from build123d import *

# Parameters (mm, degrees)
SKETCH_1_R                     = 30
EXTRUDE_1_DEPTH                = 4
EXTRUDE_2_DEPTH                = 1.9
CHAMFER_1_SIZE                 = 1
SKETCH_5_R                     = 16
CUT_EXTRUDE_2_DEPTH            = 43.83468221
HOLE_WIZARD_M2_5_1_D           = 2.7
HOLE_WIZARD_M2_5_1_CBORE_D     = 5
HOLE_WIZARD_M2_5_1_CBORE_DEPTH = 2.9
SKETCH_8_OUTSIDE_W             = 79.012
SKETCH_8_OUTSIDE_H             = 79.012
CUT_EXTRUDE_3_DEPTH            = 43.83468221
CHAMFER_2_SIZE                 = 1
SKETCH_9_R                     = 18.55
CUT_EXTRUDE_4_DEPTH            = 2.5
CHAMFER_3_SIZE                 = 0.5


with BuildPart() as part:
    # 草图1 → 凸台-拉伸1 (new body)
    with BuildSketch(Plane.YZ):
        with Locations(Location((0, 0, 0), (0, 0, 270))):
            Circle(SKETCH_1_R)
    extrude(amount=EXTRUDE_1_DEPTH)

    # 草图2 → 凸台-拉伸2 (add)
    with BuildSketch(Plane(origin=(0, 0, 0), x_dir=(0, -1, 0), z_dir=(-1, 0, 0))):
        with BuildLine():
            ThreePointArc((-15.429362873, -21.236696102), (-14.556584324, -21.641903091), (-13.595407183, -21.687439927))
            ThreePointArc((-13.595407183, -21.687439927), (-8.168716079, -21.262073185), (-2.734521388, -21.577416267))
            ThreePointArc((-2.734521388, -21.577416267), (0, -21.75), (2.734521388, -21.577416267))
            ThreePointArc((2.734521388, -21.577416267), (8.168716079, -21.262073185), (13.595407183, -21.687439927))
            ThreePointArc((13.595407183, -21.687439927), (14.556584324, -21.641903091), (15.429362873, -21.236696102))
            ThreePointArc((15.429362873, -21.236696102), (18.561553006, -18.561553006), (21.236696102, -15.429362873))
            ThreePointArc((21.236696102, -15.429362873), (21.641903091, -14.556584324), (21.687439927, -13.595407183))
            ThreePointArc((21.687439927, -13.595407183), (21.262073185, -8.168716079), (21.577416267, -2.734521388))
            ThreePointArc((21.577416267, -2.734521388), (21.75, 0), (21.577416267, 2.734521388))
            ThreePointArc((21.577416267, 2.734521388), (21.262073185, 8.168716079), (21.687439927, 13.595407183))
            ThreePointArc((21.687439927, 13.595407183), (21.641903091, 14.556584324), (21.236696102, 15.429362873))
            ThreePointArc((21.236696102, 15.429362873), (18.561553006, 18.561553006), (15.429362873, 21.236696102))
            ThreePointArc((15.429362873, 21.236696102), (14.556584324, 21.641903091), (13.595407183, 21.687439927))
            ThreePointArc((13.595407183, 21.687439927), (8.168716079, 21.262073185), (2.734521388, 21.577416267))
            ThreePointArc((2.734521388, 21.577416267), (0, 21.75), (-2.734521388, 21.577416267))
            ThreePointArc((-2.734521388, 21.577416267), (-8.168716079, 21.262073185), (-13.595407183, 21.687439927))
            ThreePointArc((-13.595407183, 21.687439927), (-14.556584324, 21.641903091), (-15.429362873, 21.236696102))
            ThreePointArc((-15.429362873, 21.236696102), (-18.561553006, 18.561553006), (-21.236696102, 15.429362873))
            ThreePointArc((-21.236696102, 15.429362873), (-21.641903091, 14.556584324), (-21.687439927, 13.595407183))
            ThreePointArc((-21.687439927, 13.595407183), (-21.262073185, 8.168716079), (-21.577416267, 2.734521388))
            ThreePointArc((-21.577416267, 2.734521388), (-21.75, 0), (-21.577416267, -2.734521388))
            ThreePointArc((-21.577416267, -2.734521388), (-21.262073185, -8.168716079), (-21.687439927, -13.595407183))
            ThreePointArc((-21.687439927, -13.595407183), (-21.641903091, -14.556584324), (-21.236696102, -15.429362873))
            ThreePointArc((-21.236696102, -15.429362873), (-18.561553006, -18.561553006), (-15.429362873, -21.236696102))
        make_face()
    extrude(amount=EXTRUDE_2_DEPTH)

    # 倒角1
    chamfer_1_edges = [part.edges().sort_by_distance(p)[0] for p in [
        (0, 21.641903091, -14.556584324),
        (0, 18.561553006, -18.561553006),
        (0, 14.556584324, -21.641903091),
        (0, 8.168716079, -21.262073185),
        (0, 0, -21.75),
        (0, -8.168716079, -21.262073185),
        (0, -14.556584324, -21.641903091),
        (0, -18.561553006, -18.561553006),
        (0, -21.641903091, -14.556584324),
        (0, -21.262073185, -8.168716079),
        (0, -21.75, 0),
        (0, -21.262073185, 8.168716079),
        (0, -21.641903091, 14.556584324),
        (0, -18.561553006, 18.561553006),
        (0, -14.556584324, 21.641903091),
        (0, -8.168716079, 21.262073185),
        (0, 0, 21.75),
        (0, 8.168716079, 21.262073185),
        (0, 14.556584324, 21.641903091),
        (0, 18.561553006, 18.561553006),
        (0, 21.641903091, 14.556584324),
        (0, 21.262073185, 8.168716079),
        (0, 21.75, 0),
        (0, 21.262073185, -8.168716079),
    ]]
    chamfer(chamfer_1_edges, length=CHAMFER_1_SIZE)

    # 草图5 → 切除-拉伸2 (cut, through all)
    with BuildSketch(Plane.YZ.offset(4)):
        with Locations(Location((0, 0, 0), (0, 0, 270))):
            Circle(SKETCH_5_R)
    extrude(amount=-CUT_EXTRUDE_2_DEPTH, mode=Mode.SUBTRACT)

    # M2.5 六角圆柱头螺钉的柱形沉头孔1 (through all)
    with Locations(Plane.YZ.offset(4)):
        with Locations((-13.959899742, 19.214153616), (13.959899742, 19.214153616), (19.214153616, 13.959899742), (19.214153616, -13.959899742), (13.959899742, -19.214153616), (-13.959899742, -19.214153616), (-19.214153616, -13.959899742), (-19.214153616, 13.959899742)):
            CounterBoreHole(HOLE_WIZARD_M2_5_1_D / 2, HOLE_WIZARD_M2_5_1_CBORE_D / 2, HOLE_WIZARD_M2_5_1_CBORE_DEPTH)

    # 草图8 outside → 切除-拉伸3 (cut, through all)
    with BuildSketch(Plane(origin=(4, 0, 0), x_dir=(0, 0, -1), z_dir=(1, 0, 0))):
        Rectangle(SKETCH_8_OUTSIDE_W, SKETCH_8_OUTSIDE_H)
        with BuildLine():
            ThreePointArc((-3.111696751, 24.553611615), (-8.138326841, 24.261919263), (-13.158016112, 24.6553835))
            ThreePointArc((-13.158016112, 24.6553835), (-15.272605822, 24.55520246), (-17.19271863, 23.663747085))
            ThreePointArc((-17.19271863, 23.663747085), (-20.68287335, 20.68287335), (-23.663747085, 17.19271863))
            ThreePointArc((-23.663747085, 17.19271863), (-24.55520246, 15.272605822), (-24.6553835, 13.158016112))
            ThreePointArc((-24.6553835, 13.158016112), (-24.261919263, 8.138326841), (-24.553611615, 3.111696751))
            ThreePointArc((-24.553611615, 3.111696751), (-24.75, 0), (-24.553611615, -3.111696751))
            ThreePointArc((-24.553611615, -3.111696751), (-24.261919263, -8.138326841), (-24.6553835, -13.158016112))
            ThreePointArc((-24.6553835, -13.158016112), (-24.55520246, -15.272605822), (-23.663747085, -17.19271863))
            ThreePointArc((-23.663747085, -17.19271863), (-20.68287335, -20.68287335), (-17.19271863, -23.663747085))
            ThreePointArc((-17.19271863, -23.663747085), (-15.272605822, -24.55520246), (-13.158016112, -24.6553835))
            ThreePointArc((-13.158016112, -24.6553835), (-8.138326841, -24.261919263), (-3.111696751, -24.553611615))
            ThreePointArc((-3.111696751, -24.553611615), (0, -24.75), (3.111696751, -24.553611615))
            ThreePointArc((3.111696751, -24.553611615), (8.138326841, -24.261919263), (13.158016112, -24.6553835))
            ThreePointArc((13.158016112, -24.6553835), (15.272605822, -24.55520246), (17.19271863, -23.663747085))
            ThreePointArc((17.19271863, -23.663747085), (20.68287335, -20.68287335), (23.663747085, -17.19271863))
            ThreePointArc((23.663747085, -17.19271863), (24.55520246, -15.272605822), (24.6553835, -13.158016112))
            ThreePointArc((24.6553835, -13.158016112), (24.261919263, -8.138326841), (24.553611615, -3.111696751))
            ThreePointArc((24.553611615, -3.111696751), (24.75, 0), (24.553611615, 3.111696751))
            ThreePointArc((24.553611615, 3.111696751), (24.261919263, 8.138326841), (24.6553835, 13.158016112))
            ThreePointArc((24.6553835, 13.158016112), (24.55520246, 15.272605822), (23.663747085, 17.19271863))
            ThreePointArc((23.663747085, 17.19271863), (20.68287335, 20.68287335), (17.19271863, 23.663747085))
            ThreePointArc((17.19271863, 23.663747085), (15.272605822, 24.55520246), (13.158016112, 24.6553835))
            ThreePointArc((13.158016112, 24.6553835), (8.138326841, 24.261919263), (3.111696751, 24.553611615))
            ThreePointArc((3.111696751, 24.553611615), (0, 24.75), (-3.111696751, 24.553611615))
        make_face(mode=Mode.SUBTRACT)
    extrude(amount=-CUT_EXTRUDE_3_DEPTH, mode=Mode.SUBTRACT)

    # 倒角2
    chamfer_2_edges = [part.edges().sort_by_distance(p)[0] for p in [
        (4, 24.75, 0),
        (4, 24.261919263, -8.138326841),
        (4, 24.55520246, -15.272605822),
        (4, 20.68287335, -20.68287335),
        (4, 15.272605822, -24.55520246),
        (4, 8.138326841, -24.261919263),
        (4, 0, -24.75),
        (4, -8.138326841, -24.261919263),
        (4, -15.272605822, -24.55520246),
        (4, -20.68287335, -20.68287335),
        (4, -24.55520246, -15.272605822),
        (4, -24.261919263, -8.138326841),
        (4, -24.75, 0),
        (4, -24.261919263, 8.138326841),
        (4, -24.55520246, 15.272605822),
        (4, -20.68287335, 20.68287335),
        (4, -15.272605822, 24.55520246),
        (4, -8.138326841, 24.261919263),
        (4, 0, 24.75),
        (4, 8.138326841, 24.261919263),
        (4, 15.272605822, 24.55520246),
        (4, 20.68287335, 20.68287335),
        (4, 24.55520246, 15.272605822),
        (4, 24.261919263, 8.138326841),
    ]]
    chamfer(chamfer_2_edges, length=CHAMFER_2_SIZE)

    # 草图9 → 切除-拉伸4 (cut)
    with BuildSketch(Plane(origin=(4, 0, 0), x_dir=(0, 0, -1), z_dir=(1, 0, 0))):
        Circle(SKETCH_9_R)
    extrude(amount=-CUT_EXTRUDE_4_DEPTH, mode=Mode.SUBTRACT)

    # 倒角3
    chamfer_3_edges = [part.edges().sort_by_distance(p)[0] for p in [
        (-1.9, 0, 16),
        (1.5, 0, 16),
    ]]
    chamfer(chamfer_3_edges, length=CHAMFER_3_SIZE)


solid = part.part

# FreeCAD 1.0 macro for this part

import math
import FreeCAD as App
import Part
import Sketcher
from FreeCAD import Vector
Q = App.Units.Quantity


def edges_at(feature, points):
    """Names of the edges that pass closest to the given points."""
    edges = feature.Shape.Edges
    near = lambda p: min(range(len(edges)), key=lambda i: edges[i].distToShape(Part.Vertex(*p))[0])
    return sorted({f"Edge{near(p) + 1}" for p in points})


def add_polygon(sketch, points):
    """Adds a closed chain of lines whose ends are joined by coincident constraints."""
    first, n = sketch.GeometryCount, len(points)
    for a, b in zip(points, points[1:] + points[:1]):
        sketch.addGeometry(Part.LineSegment(App.Vector(*a, 0), App.Vector(*b, 0)), False)
    for i in range(n):
        sketch.addConstraint(Sketcher.Constraint("Coincident", first + i, 2, first + (i + 1) % n, 1))

doc = App.newDocument("Part")
body = doc.addObject("PartDesign::Body", "Body")

sketch1 = body.newObject("Sketcher::SketchObject", "Sketch")
sketch1.AttachmentSupport = (doc.getObject("YZ_Plane"), [""])
sketch1.MapMode = "FlatFace"
sketch1.addGeometry(Part.Circle(Vector(0, 0, 0), Vector(0, 0, 1), 30), False)
sketch1.addConstraint([
    Sketcher.Constraint("Coincident", 0, 3, -1, 1),
    Sketcher.Constraint("Diameter", 0, Q("60 mm")),
])
pad1 = body.newObject("PartDesign::Pad", "Pad")
pad1.Profile = sketch1
pad1.Length = 4

sketch2 = body.newObject("Sketcher::SketchObject", "Sketch001")
sketch2.AttachmentSupport = (doc.getObject("YZ_Plane"), [""])
sketch2.MapMode = "FlatFace"
sketch2.addGeometry([
    Part.ArcOfCircle(Part.Circle(Vector(14, -19.2, 0), Vector(0, 0, 1), 2.5), math.radians(-98), math.radians(-54)),
    Part.ArcOfCircle(Part.Circle(Vector(7.8, -61.3, 0), Vector(0, 0, 1), 40), math.radians(81.62), math.radians(97.22)),
    Part.ArcOfCircle(Part.Circle(Vector(0, 0, 0), Vector(0, 0, 1), 21.7), math.radians(-97.22), math.radians(-82.78)),
    Part.ArcOfCircle(Part.Circle(Vector(-7.8, -61.3, 0), Vector(0, 0, 1), 40), math.radians(82.78), math.radians(98.38)),
    Part.ArcOfCircle(Part.Circle(Vector(-14, -19.2, 0), Vector(0, 0, 1), 2.5), math.radians(-126), math.radians(-82)),
    Part.ArcOfCircle(Part.Circle(Vector(0, 0, 0), Vector(0, 0, 1), 26.3), math.radians(-144), math.radians(-126)),
    Part.ArcOfCircle(Part.Circle(Vector(-19.2, -14, 0), Vector(0, 0, 1), 2.5), math.radians(172), math.radians(216)),
    Part.ArcOfCircle(Part.Circle(Vector(-61.3, -7.8, 0), Vector(0, 0, 1), 40), math.radians(-8.38), math.radians(7.22)),
    Part.ArcOfCircle(Part.Circle(Vector(0, 0, 0), Vector(0, 0, 1), 21.7), math.radians(172.78), math.radians(187.22)),
    Part.ArcOfCircle(Part.Circle(Vector(-61.3, 7.8, 0), Vector(0, 0, 1), 40), math.radians(-7.22), math.radians(8.38)),
    Part.ArcOfCircle(Part.Circle(Vector(-19.2, 14, 0), Vector(0, 0, 1), 2.5), math.radians(144), math.radians(188)),
    Part.ArcOfCircle(Part.Circle(Vector(0, 0, 0), Vector(0, 0, 1), 26.3), math.radians(126), math.radians(144)),
    Part.ArcOfCircle(Part.Circle(Vector(-14, 19.2, 0), Vector(0, 0, 1), 2.5), math.radians(82), math.radians(126)),
    Part.ArcOfCircle(Part.Circle(Vector(-7.8, 61.3, 0), Vector(0, 0, 1), 40), math.radians(-98.38), math.radians(-82.78)),
    Part.ArcOfCircle(Part.Circle(Vector(0, 0, 0), Vector(0, 0, 1), 21.7), math.radians(82.78), math.radians(97.22)),
    Part.ArcOfCircle(Part.Circle(Vector(7.8, 61.3, 0), Vector(0, 0, 1), 40), math.radians(-97.22), math.radians(-81.62)),
    Part.ArcOfCircle(Part.Circle(Vector(14, 19.2, 0), Vector(0, 0, 1), 2.5), math.radians(54), math.radians(98)),
    Part.ArcOfCircle(Part.Circle(Vector(0, 0, 0), Vector(0, 0, 1), 26.3), math.radians(36), math.radians(54)),
    Part.ArcOfCircle(Part.Circle(Vector(19.2, 14, 0), Vector(0, 0, 1), 2.5), math.radians(-8), math.radians(36)),
    Part.ArcOfCircle(Part.Circle(Vector(61.3, 7.8, 0), Vector(0, 0, 1), 40), math.radians(171.62), math.radians(187.22)),
    Part.ArcOfCircle(Part.Circle(Vector(0, 0, 0), Vector(0, 0, 1), 21.7), math.radians(-7.22), math.radians(7.22)),
    Part.ArcOfCircle(Part.Circle(Vector(61.3, -7.8, 0), Vector(0, 0, 1), 40), math.radians(172.78), math.radians(188.38)),
    Part.ArcOfCircle(Part.Circle(Vector(19.2, -14, 0), Vector(0, 0, 1), 2.5), math.radians(-36), math.radians(8)),
    Part.ArcOfCircle(Part.Circle(Vector(0, 0, 0), Vector(0, 0, 1), 26.3), math.radians(-54), math.radians(-36)),
], False)
sketch2.addConstraint([
    Sketcher.Constraint("Tangent", 0, 1, 1, 1),
    Sketcher.Constraint("Tangent", 1, 2, 2, 2),
    Sketcher.Constraint("Tangent", 2, 1, 3, 1),
    Sketcher.Constraint("Tangent", 3, 2, 4, 2),
    Sketcher.Constraint("Tangent", 4, 1, 5, 2),
    Sketcher.Constraint("Tangent", 5, 1, 6, 2),
    Sketcher.Constraint("Tangent", 6, 1, 7, 1),
    Sketcher.Constraint("Tangent", 7, 2, 8, 2),
    Sketcher.Constraint("Tangent", 8, 1, 9, 1),
    Sketcher.Constraint("Tangent", 9, 2, 10, 2),
    Sketcher.Constraint("Tangent", 10, 1, 11, 2),
    Sketcher.Constraint("Tangent", 11, 1, 12, 2),
    Sketcher.Constraint("Tangent", 12, 1, 13, 1),
    Sketcher.Constraint("Tangent", 13, 2, 14, 2),
    Sketcher.Constraint("Tangent", 14, 1, 15, 1),
    Sketcher.Constraint("Tangent", 15, 2, 16, 2),
    Sketcher.Constraint("Tangent", 16, 1, 17, 2),
    Sketcher.Constraint("Tangent", 17, 1, 18, 2),
    Sketcher.Constraint("Tangent", 18, 1, 19, 1),
    Sketcher.Constraint("Tangent", 19, 2, 20, 2),
    Sketcher.Constraint("Tangent", 20, 1, 21, 1),
    Sketcher.Constraint("Tangent", 21, 2, 22, 2),
    Sketcher.Constraint("Tangent", 22, 1, 23, 2),
    Sketcher.Constraint("Tangent", 23, 1, 0, 2),
    Sketcher.Constraint("Coincident", 2, 3, -1, 1),
    Sketcher.Constraint("Coincident", 5, 3, -1, 1),
    Sketcher.Constraint("Coincident", 8, 3, -1, 1),
    Sketcher.Constraint("Coincident", 11, 3, -1, 1),
    Sketcher.Constraint("Coincident", 14, 3, -1, 1),
    Sketcher.Constraint("Coincident", 17, 3, -1, 1),
    Sketcher.Constraint("Coincident", 20, 3, -1, 1),
    Sketcher.Constraint("Coincident", 23, 3, -1, 1),
    Sketcher.Constraint("Equal", 1, 3),
    Sketcher.Constraint("Equal", 0, 4),
    Sketcher.Constraint("Equal", 4, 6),
    Sketcher.Constraint("Equal", 3, 7),
    Sketcher.Constraint("Equal", 2, 8),
    Sketcher.Constraint("Equal", 7, 9),
    Sketcher.Constraint("Equal", 6, 10),
    Sketcher.Constraint("Equal", 5, 11),
    Sketcher.Constraint("Equal", 10, 12),
    Sketcher.Constraint("Equal", 9, 13),
    Sketcher.Constraint("Equal", 8, 14),
    Sketcher.Constraint("Equal", 13, 15),
    Sketcher.Constraint("Equal", 12, 16),
    Sketcher.Constraint("Equal", 11, 17),
    Sketcher.Constraint("Equal", 16, 18),
    Sketcher.Constraint("Equal", 15, 19),
    Sketcher.Constraint("Equal", 14, 20),
    Sketcher.Constraint("Equal", 19, 21),
    Sketcher.Constraint("Equal", 18, 22),
    Sketcher.Constraint("Equal", 17, 23),
    Sketcher.Constraint("Horizontal", 1, 3, 3, 3),
    Sketcher.Constraint("Horizontal", 13, 3, 15, 3),
    Sketcher.Constraint("Horizontal", 10, 3, 18, 3),
    Sketcher.Constraint("Horizontal", 7, 3, 21, 3),
    Sketcher.Constraint("Vertical", 7, 3, 9, 3),
    Sketcher.Constraint("Vertical", 4, 3, 12, 3),
    Sketcher.Constraint("Radius", 1, Q("40 mm")),
    Sketcher.Constraint("Radius", 0, Q("2.5 mm")),
    Sketcher.Constraint("Radius", 2, Q("21.75 mm")),
    Sketcher.Constraint("Radius", 5, Q("26.25 mm")),
    Sketcher.Constraint("DistanceX", -1, 1, 0, 3, Q("13.9599 mm")),
    Sketcher.Constraint("DistanceY", 6, 3, -1, 1, Q("13.9599 mm")),
])
pad2 = body.newObject("PartDesign::Pad", "Pad001")
pad2.Profile = sketch2
pad2.Length = 1.9
pad2.Reversed = True
doc.recompute()

chamfer = body.newObject("PartDesign::Chamfer", "Chamfer")
chamfer.Base = (pad2, edges_at(pad2, [
    (0, 21.642, -14.557),
    (0, 18.562, -18.562),
    (0, 14.557, -21.642),
    (0, 8.169, -21.262),
    (0, 0, -21.75),
    (0, -8.169, -21.262),
    (0, -14.557, -21.642),
    (0, -18.562, -18.562),
    (0, -21.642, -14.557),
    (0, -21.262, -8.169),
    (0, -21.75, 0),
    (0, -21.262, 8.169),
    (0, -21.642, 14.557),
    (0, -18.562, 18.562),
    (0, -14.557, 21.642),
    (0, -8.169, 21.262),
    (0, 0, 21.75),
    (0, 8.169, 21.262),
    (0, 14.557, 21.642),
    (0, 18.562, 18.562),
    (0, 21.642, 14.557),
    (0, 21.262, 8.169),
    (0, 21.75, 0),
    (0, 21.262, -8.169),
]))
chamfer.Size = 1

sketch3 = body.newObject("Sketcher::SketchObject", "Sketch002")
sketch3.AttachmentSupport = (doc.getObject("YZ_Plane"), [""])
sketch3.MapMode = "FlatFace"
sketch3.AttachmentOffset = App.Placement(Vector(0, 0, 4), App.Rotation())
sketch3.addGeometry(Part.Circle(Vector(0, 0, 0), Vector(0, 0, 1), 16), False)
sketch3.addConstraint([
    Sketcher.Constraint("Coincident", 0, 3, -1, 1),
    Sketcher.Constraint("Diameter", 0, Q("32 mm")),
])
pocket1 = body.newObject("PartDesign::Pocket", "Pocket")
pocket1.Profile = sketch3
pocket1.Type = "ThroughAll"

sketch4 = body.newObject("Sketcher::SketchObject", "Sketch003")
sketch4.AttachmentSupport = (doc.getObject("YZ_Plane"), [""])
sketch4.MapMode = "FlatFace"
sketch4.AttachmentOffset = App.Placement(Vector(0, 0, 4), App.Rotation())
sketch4.addGeometry([
    Part.Circle(Vector(-14, 19.2, 0), Vector(0, 0, 1), 1.4),
    Part.Circle(Vector(14, 19.2, 0), Vector(0, 0, 1), 1.4),
    Part.Circle(Vector(19.2, 14, 0), Vector(0, 0, 1), 1.4),
    Part.Circle(Vector(19.2, -14, 0), Vector(0, 0, 1), 1.4),
    Part.Circle(Vector(14, -19.2, 0), Vector(0, 0, 1), 1.4),
    Part.Circle(Vector(-14, -19.2, 0), Vector(0, 0, 1), 1.4),
    Part.Circle(Vector(-19.2, -14, 0), Vector(0, 0, 1), 1.4),
    Part.Circle(Vector(-19.2, 14, 0), Vector(0, 0, 1), 1.4),
], False)
sketch4.addConstraint([
    Sketcher.Constraint("Equal", 0, 1),
    Sketcher.Constraint("Equal", 1, 2),
    Sketcher.Constraint("Equal", 2, 3),
    Sketcher.Constraint("Equal", 3, 4),
    Sketcher.Constraint("Equal", 4, 5),
    Sketcher.Constraint("Equal", 5, 6),
    Sketcher.Constraint("Equal", 6, 7),
    Sketcher.Constraint("Symmetric", 0, 3, 4, 3, -1, 1),
    Sketcher.Constraint("Symmetric", 1, 3, 5, 3, -1, 1),
    Sketcher.Constraint("Symmetric", 2, 3, 6, 3, -1, 1),
    Sketcher.Constraint("Symmetric", 3, 3, 7, 3, -1, 1),
    Sketcher.Constraint("Symmetric", 0, 3, 1, 3, -2),
    Sketcher.Constraint("Symmetric", 3, 3, 6, 3, -2),
    Sketcher.Constraint("Diameter", 0, Q("2.7 mm")),
    Sketcher.Constraint("DistanceX", 0, 3, -1, 1, Q("13.9599 mm")),
    Sketcher.Constraint("DistanceY", -1, 1, 2, 3, Q("13.9599 mm")),
    Sketcher.Constraint("DistanceY", -1, 1, 0, 3, Q("19.214154 mm")),
    Sketcher.Constraint("DistanceX", -1, 1, 2, 3, Q("19.214154 mm")),
])
doc.recompute()
hole = body.newObject("PartDesign::Hole", "Hole")
hole.Profile = sketch4
hole.ThreadType = "None"
hole.Diameter = 2.7
hole.DepthType = "ThroughAll"
hole.HoleCutType = "Counterbore"
hole.HoleCutDiameter = 5
hole.HoleCutDepth = 2.9

sketch5 = body.newObject("Sketcher::SketchObject", "Sketch004")
sketch5.AttachmentSupport = (doc.getObject("YZ_Plane"), [""])
sketch5.MapMode = "FlatFace"
sketch5.AttachmentOffset = App.Placement(Vector(0, 0, 4), App.Rotation())
add_polygon(sketch5, [(39.5, 39.5), (-39.5, 39.5), (-39.5, -39.5), (39.5, -39.5)])
sketch5.addGeometry(Part.ArcOfCircle(Part.Circle(Vector(61.3, 7.8, 0), Vector(0, 0, 1), 37), math.radians(171.62), math.radians(187.22)), False)
sketch5.addGeometry(Part.ArcOfCircle(Part.Circle(Vector(0, 0, 0), Vector(0, 0, 1), 24.8), math.radians(-7.22), math.radians(7.22)), False)
sketch5.addGeometry(Part.ArcOfCircle(Part.Circle(Vector(61.3, -7.8, 0), Vector(0, 0, 1), 37), math.radians(172.78), math.radians(188.38)), False)
sketch5.addGeometry(Part.ArcOfCircle(Part.Circle(Vector(19.2, -14, 0), Vector(0, 0, 1), 5.5), math.radians(-36), math.radians(8)), False)
sketch5.addGeometry(Part.ArcOfCircle(Part.Circle(Vector(0, 0, 0), Vector(0, 0, 1), 29.2), math.radians(-54), math.radians(-36)), False)
sketch5.addGeometry(Part.ArcOfCircle(Part.Circle(Vector(14, -19.2, 0), Vector(0, 0, 1), 5.5), math.radians(-98), math.radians(-54)), False)
sketch5.addGeometry(Part.ArcOfCircle(Part.Circle(Vector(7.8, -61.3, 0), Vector(0, 0, 1), 37), math.radians(81.62), math.radians(97.22)), False)
sketch5.addGeometry(Part.ArcOfCircle(Part.Circle(Vector(0, 0, 0), Vector(0, 0, 1), 24.8), math.radians(-97.22), math.radians(-82.78)), False)
sketch5.addGeometry(Part.ArcOfCircle(Part.Circle(Vector(-7.8, -61.3, 0), Vector(0, 0, 1), 37), math.radians(82.78), math.radians(98.38)), False)
sketch5.addGeometry(Part.ArcOfCircle(Part.Circle(Vector(-14, -19.2, 0), Vector(0, 0, 1), 5.5), math.radians(-126), math.radians(-82)), False)
sketch5.addGeometry(Part.ArcOfCircle(Part.Circle(Vector(0, 0, 0), Vector(0, 0, 1), 29.2), math.radians(-144), math.radians(-126)), False)
sketch5.addGeometry(Part.ArcOfCircle(Part.Circle(Vector(-19.2, -14, 0), Vector(0, 0, 1), 5.5), math.radians(172), math.radians(216)), False)
sketch5.addGeometry(Part.ArcOfCircle(Part.Circle(Vector(-61.3, -7.8, 0), Vector(0, 0, 1), 37), math.radians(-8.38), math.radians(7.22)), False)
sketch5.addGeometry(Part.ArcOfCircle(Part.Circle(Vector(0, 0, 0), Vector(0, 0, 1), 24.8), math.radians(172.78), math.radians(187.22)), False)
sketch5.addGeometry(Part.ArcOfCircle(Part.Circle(Vector(-61.3, 7.8, 0), Vector(0, 0, 1), 37), math.radians(-7.22), math.radians(8.38)), False)
sketch5.addGeometry(Part.ArcOfCircle(Part.Circle(Vector(-19.2, 14, 0), Vector(0, 0, 1), 5.5), math.radians(144), math.radians(188)), False)
sketch5.addGeometry(Part.ArcOfCircle(Part.Circle(Vector(0, 0, 0), Vector(0, 0, 1), 29.2), math.radians(126), math.radians(144)), False)
sketch5.addGeometry(Part.ArcOfCircle(Part.Circle(Vector(-14, 19.2, 0), Vector(0, 0, 1), 5.5), math.radians(82), math.radians(126)), False)
sketch5.addGeometry(Part.ArcOfCircle(Part.Circle(Vector(-7.8, 61.3, 0), Vector(0, 0, 1), 37), math.radians(-98.38), math.radians(-82.78)), False)
sketch5.addGeometry(Part.ArcOfCircle(Part.Circle(Vector(0, 0, 0), Vector(0, 0, 1), 24.8), math.radians(82.78), math.radians(97.22)), False)
sketch5.addGeometry(Part.ArcOfCircle(Part.Circle(Vector(7.8, 61.3, 0), Vector(0, 0, 1), 37), math.radians(-97.22), math.radians(-81.62)), False)
sketch5.addGeometry(Part.ArcOfCircle(Part.Circle(Vector(14, 19.2, 0), Vector(0, 0, 1), 5.5), math.radians(54), math.radians(98)), False)
sketch5.addGeometry(Part.ArcOfCircle(Part.Circle(Vector(0, 0, 0), Vector(0, 0, 1), 29.2), math.radians(36), math.radians(54)), False)
sketch5.addGeometry(Part.ArcOfCircle(Part.Circle(Vector(19.2, 14, 0), Vector(0, 0, 1), 5.5), math.radians(-8), math.radians(36)), False)
sketch5.addConstraint([
    Sketcher.Constraint("Tangent", 4, 2, 5, 2),
    Sketcher.Constraint("Tangent", 5, 1, 6, 1),
    Sketcher.Constraint("Tangent", 6, 2, 7, 2),
    Sketcher.Constraint("Tangent", 7, 1, 8, 2),
    Sketcher.Constraint("Tangent", 8, 1, 9, 2),
    Sketcher.Constraint("Tangent", 9, 1, 10, 1),
    Sketcher.Constraint("Tangent", 10, 2, 11, 2),
    Sketcher.Constraint("Tangent", 11, 1, 12, 1),
    Sketcher.Constraint("Tangent", 12, 2, 13, 2),
    Sketcher.Constraint("Tangent", 13, 1, 14, 2),
    Sketcher.Constraint("Tangent", 14, 1, 15, 2),
    Sketcher.Constraint("Tangent", 15, 1, 16, 1),
    Sketcher.Constraint("Tangent", 16, 2, 17, 2),
    Sketcher.Constraint("Tangent", 17, 1, 18, 1),
    Sketcher.Constraint("Tangent", 18, 2, 19, 2),
    Sketcher.Constraint("Tangent", 19, 1, 20, 2),
    Sketcher.Constraint("Tangent", 20, 1, 21, 2),
    Sketcher.Constraint("Tangent", 21, 1, 22, 1),
    Sketcher.Constraint("Tangent", 22, 2, 23, 2),
    Sketcher.Constraint("Tangent", 23, 1, 24, 1),
    Sketcher.Constraint("Tangent", 24, 2, 25, 2),
    Sketcher.Constraint("Tangent", 25, 1, 26, 2),
    Sketcher.Constraint("Tangent", 26, 1, 27, 2),
    Sketcher.Constraint("Tangent", 27, 1, 4, 1),
    Sketcher.Constraint("Horizontal", 0),
    Sketcher.Constraint("Vertical", 1),
    Sketcher.Constraint("Horizontal", 2),
    Sketcher.Constraint("Vertical", 3),
    Sketcher.Constraint("Coincident", 5, 3, -1, 1),
    Sketcher.Constraint("Coincident", 8, 3, -1, 1),
    Sketcher.Constraint("Coincident", 11, 3, -1, 1),
    Sketcher.Constraint("Coincident", 14, 3, -1, 1),
    Sketcher.Constraint("Coincident", 17, 3, -1, 1),
    Sketcher.Constraint("Coincident", 20, 3, -1, 1),
    Sketcher.Constraint("Coincident", 23, 3, -1, 1),
    Sketcher.Constraint("Coincident", 26, 3, -1, 1),
    Sketcher.Constraint("Equal", 4, 6),
    Sketcher.Constraint("Equal", 7, 9),
    Sketcher.Constraint("Equal", 6, 10),
    Sketcher.Constraint("Equal", 5, 11),
    Sketcher.Constraint("Equal", 10, 12),
    Sketcher.Constraint("Equal", 9, 13),
    Sketcher.Constraint("Equal", 8, 14),
    Sketcher.Constraint("Equal", 13, 15),
    Sketcher.Constraint("Equal", 12, 16),
    Sketcher.Constraint("Equal", 11, 17),
    Sketcher.Constraint("Equal", 16, 18),
    Sketcher.Constraint("Equal", 15, 19),
    Sketcher.Constraint("Equal", 14, 20),
    Sketcher.Constraint("Equal", 19, 21),
    Sketcher.Constraint("Equal", 18, 22),
    Sketcher.Constraint("Equal", 17, 23),
    Sketcher.Constraint("Equal", 22, 24),
    Sketcher.Constraint("Equal", 21, 25),
    Sketcher.Constraint("Equal", 20, 26),
    Sketcher.Constraint("Equal", 25, 27),
    Sketcher.Constraint("Symmetric", 0, 2, 2, 2, -1, 1),
    Sketcher.Constraint("Horizontal", 10, 3, 12, 3),
    Sketcher.Constraint("Horizontal", 7, 3, 15, 3),
    Sketcher.Constraint("Horizontal", 4, 3, 18, 3),
    Sketcher.Constraint("Horizontal", 22, 3, 24, 3),
    Sketcher.Constraint("Vertical", 4, 3, 6, 3),
    Sketcher.Constraint("Vertical", 13, 3, 21, 3),
    Sketcher.Constraint("Equal", 2, 1),
    Sketcher.Constraint("Radius", 4, Q("37 mm")),
    Sketcher.Constraint("Radius", 7, Q("5.5 mm")),
    Sketcher.Constraint("Radius", 5, Q("24.75 mm")),
    Sketcher.Constraint("Radius", 8, Q("29.25 mm")),
    Sketcher.Constraint("DistanceX", 0, 2, 0, 1, Q("79.012 mm")),
    Sketcher.Constraint("DistanceY", 7, 3, -1, 1, Q("13.9599 mm")),
    Sketcher.Constraint("DistanceX", -1, 1, 9, 3, Q("13.9599 mm")),
])
pocket2 = body.newObject("PartDesign::Pocket", "Pocket001")
pocket2.Profile = sketch5
pocket2.Type = "ThroughAll"
doc.recompute()

chamfer2 = body.newObject("PartDesign::Chamfer", "Chamfer001")
chamfer2.Base = (pocket2, edges_at(pocket2, [
    (4, 24.75, 0),
    (4, 24.262, -8.138),
    (4, 24.555, -15.273),
    (4, 20.683, -20.683),
    (4, 15.273, -24.555),
    (4, 8.138, -24.262),
    (4, 0, -24.75),
    (4, -8.138, -24.262),
    (4, -15.273, -24.555),
    (4, -20.683, -20.683),
    (4, -24.555, -15.273),
    (4, -24.262, -8.138),
    (4, -24.75, 0),
    (4, -24.262, 8.138),
    (4, -24.555, 15.273),
    (4, -20.683, 20.683),
    (4, -15.273, 24.555),
    (4, -8.138, 24.262),
    (4, 0, 24.75),
    (4, 8.138, 24.262),
    (4, 15.273, 24.555),
    (4, 20.683, 20.683),
    (4, 24.555, 15.273),
    (4, 24.262, 8.138),
]))
chamfer2.Size = 1

sketch6 = body.newObject("Sketcher::SketchObject", "Sketch005")
sketch6.AttachmentSupport = (doc.getObject("YZ_Plane"), [""])
sketch6.MapMode = "FlatFace"
sketch6.AttachmentOffset = App.Placement(Vector(0, 0, 4), App.Rotation())
sketch6.addGeometry(Part.Circle(Vector(0, 0, 0), Vector(0, 0, 1), 19), False)
sketch6.addConstraint([
    Sketcher.Constraint("Coincident", 0, 3, -1, 1),
    Sketcher.Constraint("Diameter", 0, Q("37.1 mm")),
])
pocket3 = body.newObject("PartDesign::Pocket", "Pocket002")
pocket3.Profile = sketch6
pocket3.Length = 2.5
doc.recompute()

chamfer3 = body.newObject("PartDesign::Chamfer", "Chamfer002")
chamfer3.Base = (pocket3, edges_at(pocket3, [(-1.9, 0, 16), (1.5, 0, 16)]))
chamfer3.Size = 0.5

doc.recompute()
